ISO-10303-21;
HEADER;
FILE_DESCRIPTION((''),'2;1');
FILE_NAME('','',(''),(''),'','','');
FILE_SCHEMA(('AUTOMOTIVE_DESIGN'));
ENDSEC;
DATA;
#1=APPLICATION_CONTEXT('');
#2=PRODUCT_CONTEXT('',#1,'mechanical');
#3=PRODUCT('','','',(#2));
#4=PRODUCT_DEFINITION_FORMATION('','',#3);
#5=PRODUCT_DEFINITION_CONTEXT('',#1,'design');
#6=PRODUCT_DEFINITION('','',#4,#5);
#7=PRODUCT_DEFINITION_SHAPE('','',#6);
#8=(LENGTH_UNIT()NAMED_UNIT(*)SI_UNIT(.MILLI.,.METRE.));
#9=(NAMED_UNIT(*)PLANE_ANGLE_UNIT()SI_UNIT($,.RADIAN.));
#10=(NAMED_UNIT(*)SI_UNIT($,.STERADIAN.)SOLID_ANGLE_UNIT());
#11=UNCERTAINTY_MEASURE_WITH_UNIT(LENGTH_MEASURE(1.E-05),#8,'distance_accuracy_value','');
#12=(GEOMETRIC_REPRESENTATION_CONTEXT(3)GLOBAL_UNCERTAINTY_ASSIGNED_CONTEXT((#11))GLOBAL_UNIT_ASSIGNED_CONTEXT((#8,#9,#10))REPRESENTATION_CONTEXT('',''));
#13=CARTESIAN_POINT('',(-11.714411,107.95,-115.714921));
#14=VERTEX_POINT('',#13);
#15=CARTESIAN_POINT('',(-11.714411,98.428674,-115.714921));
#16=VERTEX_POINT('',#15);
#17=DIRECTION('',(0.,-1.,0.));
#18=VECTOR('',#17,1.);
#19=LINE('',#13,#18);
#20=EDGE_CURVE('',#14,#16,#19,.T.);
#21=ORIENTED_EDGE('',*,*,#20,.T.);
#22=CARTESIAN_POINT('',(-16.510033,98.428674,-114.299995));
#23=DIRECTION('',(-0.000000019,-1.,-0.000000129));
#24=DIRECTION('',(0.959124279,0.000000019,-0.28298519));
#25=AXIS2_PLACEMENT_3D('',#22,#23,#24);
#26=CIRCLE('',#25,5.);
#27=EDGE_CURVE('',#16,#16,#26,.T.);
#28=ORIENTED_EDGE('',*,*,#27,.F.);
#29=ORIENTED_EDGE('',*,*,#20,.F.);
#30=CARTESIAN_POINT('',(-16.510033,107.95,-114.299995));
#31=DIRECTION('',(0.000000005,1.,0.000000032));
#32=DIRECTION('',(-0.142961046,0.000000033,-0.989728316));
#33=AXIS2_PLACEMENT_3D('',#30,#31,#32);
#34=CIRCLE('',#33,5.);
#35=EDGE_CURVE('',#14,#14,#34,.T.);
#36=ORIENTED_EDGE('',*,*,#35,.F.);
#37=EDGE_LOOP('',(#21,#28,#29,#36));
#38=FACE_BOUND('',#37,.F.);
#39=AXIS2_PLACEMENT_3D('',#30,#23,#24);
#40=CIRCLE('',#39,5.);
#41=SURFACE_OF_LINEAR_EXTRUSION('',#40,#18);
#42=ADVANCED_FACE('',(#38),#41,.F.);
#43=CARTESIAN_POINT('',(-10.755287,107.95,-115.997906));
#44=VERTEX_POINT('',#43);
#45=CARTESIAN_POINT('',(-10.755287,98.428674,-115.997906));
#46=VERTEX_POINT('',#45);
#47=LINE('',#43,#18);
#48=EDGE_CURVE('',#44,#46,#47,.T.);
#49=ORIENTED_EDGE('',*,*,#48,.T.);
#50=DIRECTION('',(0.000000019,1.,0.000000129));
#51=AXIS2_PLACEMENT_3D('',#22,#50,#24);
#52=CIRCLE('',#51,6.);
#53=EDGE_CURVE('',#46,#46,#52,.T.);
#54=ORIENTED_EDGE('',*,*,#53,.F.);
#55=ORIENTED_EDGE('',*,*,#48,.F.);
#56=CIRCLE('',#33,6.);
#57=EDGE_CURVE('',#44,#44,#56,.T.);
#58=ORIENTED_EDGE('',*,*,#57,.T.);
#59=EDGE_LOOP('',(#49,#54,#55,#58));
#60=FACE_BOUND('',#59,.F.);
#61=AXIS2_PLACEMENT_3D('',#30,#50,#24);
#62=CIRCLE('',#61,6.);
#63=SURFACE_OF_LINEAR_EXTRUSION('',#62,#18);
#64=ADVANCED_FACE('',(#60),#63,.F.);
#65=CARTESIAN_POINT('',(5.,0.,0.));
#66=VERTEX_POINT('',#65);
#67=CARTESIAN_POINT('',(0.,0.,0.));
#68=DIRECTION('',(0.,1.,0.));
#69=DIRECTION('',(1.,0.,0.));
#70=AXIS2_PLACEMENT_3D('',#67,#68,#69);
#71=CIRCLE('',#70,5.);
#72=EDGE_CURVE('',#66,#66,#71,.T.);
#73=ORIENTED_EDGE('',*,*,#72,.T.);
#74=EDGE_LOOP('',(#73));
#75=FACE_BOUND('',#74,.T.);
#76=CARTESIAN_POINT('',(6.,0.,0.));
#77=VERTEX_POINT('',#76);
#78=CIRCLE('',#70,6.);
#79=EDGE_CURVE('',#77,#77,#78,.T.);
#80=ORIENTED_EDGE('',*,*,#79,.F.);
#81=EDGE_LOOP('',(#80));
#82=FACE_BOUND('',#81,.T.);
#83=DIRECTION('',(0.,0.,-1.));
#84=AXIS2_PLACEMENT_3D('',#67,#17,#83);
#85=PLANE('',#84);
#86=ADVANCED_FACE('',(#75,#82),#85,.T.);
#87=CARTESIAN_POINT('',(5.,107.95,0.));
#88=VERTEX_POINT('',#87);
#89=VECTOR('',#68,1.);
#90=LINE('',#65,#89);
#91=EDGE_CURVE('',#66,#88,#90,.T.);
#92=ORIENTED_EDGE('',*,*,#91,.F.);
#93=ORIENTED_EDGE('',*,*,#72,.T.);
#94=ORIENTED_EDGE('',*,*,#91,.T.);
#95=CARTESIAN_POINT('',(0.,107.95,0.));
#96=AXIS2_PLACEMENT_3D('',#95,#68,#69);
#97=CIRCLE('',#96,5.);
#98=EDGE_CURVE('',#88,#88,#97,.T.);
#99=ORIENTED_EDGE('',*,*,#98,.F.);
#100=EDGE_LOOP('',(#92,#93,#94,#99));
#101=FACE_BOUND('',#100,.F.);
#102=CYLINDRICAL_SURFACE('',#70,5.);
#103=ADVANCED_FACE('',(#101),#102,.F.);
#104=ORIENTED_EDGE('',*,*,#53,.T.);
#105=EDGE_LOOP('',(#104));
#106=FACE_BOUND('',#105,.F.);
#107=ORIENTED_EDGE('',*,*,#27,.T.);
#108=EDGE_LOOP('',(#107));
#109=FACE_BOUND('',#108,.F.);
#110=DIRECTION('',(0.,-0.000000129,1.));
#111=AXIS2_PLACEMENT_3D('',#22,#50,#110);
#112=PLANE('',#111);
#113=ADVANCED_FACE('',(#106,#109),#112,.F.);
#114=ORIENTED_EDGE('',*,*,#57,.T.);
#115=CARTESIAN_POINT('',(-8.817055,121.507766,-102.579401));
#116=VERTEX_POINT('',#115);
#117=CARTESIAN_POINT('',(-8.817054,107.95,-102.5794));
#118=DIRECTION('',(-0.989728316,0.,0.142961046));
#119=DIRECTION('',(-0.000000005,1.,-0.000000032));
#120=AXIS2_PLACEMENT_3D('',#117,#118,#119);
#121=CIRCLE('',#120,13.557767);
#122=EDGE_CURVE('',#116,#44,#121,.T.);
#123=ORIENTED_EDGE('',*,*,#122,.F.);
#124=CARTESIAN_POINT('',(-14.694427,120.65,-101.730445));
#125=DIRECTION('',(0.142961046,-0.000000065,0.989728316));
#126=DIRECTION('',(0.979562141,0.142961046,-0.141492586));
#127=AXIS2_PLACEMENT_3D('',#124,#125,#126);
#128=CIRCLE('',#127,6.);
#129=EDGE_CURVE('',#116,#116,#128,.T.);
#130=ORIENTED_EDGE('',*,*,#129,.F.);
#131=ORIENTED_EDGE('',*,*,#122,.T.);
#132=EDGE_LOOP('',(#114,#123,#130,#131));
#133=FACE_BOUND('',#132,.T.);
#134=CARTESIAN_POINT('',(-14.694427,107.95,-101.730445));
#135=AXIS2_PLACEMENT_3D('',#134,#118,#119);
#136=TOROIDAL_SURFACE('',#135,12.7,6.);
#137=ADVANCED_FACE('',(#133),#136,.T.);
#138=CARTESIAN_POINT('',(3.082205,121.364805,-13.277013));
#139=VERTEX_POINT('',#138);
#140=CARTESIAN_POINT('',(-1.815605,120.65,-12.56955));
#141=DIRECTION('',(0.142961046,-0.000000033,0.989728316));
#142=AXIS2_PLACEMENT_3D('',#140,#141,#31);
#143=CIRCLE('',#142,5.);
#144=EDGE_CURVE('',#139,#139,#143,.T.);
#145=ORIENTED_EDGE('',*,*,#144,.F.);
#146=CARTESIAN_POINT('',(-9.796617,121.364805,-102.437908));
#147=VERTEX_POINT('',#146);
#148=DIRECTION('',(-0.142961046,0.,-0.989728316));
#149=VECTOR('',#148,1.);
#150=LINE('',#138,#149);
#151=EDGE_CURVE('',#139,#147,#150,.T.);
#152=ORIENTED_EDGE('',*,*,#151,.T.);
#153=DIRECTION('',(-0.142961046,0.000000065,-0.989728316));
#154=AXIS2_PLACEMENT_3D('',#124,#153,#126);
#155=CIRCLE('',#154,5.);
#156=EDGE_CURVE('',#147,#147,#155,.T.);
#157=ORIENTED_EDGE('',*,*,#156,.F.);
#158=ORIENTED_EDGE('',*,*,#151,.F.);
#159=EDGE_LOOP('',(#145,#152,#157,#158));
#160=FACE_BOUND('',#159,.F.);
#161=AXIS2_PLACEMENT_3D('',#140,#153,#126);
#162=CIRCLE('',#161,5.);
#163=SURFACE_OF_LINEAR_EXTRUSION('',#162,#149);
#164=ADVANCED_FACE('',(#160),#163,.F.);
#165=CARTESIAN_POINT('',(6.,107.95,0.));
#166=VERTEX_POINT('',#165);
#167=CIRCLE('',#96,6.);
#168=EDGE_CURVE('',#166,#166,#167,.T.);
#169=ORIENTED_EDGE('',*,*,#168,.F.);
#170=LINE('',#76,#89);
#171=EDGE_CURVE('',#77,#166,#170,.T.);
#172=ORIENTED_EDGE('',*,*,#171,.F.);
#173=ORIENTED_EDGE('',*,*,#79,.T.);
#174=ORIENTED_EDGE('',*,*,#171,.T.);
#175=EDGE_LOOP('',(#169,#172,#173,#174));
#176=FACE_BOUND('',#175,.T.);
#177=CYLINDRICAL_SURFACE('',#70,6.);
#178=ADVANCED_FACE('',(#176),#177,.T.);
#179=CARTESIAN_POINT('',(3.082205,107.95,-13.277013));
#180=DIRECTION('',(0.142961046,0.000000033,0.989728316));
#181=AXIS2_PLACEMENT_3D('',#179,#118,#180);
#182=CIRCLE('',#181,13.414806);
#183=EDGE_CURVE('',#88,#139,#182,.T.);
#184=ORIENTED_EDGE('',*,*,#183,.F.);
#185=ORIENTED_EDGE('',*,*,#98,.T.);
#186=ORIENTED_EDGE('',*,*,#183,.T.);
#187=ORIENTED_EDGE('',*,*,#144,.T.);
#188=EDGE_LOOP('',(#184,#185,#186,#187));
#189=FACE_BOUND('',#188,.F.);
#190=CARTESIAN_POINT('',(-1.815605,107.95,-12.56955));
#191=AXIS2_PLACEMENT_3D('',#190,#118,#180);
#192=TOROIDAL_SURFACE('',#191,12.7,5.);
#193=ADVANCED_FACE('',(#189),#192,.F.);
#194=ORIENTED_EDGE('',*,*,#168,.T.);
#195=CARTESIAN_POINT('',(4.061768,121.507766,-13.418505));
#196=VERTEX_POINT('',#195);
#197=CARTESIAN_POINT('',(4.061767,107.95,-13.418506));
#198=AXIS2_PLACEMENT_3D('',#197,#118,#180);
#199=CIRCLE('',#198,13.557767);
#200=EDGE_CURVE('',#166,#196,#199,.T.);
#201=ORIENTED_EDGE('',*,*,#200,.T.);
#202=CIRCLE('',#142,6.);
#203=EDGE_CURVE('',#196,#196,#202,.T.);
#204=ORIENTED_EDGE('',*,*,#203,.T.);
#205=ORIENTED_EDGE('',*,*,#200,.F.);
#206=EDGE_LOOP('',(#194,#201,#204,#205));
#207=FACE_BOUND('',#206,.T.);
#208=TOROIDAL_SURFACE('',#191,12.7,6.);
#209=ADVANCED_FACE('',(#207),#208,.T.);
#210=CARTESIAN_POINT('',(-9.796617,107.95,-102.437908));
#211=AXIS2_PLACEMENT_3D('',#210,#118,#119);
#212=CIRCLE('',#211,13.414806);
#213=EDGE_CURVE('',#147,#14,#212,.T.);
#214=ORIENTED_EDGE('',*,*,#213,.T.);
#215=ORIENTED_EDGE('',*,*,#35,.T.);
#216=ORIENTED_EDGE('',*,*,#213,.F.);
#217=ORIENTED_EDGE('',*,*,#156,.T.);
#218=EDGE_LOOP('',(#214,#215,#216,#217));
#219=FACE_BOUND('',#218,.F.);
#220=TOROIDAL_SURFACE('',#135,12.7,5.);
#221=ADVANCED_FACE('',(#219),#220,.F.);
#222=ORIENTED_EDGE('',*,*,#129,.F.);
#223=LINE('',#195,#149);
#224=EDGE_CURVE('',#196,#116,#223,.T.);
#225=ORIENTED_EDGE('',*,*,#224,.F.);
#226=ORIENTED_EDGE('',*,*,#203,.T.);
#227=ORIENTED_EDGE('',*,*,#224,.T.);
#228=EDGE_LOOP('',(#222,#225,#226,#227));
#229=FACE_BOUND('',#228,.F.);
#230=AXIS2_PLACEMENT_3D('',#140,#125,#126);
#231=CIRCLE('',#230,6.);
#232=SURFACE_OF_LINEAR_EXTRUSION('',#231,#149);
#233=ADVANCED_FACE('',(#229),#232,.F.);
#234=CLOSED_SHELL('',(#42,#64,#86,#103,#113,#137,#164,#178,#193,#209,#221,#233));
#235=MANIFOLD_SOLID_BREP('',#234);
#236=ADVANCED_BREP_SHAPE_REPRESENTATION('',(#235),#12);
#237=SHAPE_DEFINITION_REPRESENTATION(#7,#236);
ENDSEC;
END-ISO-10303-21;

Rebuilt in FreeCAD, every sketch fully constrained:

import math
import FreeCAD as App
import Part
import Sketcher
from FreeCAD import Vector
Q = App.Units.Quantity

doc = App.newDocument("Part")
body = doc.addObject("PartDesign::Body", "Body")

# Sketch on XZ plane
sketch1 = body.newObject("Sketcher::SketchObject", "Sketch")
sketch1.AttachmentSupport = (doc.getObject("XZ_Plane"), [""])
sketch1.MapMode = "FlatFace"
sketch1.addGeometry([
    Part.Circle(Vector(0, 0, 0), Vector(0, 0, 1), 6),
    Part.Circle(Vector(0, 0, 0), Vector(0, 0, 1), 5),
], False)
sketch1.addConstraint([
    Sketcher.Constraint("Coincident", 0, 3, -1, 1),
    Sketcher.Constraint("Coincident", 1, 3, -1, 1),
    Sketcher.Constraint("Diameter", 0, Q("12 mm")),
    Sketcher.Constraint("Diameter", 1, Q("10 mm")),
])

# Sketch on an angled plane
sketch2 = body.newObject("Sketcher::SketchObject", "Sketch001")
sketch2.Placement = App.Placement(Vector(0, 0, 0), App.Rotation(Vector(-0.142961046, 0, -0.989728316), Vector(0, 1, 0), Vector(0.989728316, 0, -0.142961046), "ZXY"))
sketch2.addGeometry([
    Part.LineSegment(Vector(0, 0, 0), Vector(0, 108, 0)),  # 0
    Part.ArcOfCircle(Part.Circle(Vector(13, 108, 0), Vector(0, 0, 1), 13), math.radians(90), math.radians(180)),  # 1
    Part.LineSegment(Vector(13, 121, 0), Vector(103, 121, 0)),  # 2
    Part.ArcOfCircle(Part.Circle(Vector(103, 108, 0), Vector(0, 0, 1), 13), math.radians(0), math.radians(90)),  # 3
    Part.LineSegment(Vector(115, 108, 0), Vector(115, 98, 0)),  # 4
], False)
sketch2.addConstraint([
    Sketcher.Constraint("Tangent", 0, 2, 1, 2),
    Sketcher.Constraint("Tangent", 1, 1, 2, 1),
    Sketcher.Constraint("Tangent", 2, 2, 3, 2),
    Sketcher.Constraint("Tangent", 3, 1, 4, 1),
    Sketcher.Constraint("Vertical", 0),
    Sketcher.Constraint("Horizontal", 2),
    Sketcher.Constraint("Vertical", 4),
    Sketcher.Constraint("Coincident", 0, 1, -1, 1),
    Sketcher.Constraint("Equal", 1, 3),
    Sketcher.Constraint("Radius", 1, Q("12.7 mm")),
    Sketcher.Constraint("DistanceY", 0, 1, 0, 2, Q("107.95 mm")),
    Sketcher.Constraint("DistanceX", 2, 1, 2, 2, Q("90.086233 mm")),
    Sketcher.Constraint("DistanceY", 4, 2, 4, 1, Q("9.521326 mm")),
])
doc.recompute()

additivepipe = body.newObject("PartDesign::AdditivePipe", "AdditivePipe")
additivepipe.Profile = sketch1
additivepipe.Spine = (sketch2, ["Edge1", "Edge2", "Edge3", "Edge4", "Edge5"])

doc.recompute()
